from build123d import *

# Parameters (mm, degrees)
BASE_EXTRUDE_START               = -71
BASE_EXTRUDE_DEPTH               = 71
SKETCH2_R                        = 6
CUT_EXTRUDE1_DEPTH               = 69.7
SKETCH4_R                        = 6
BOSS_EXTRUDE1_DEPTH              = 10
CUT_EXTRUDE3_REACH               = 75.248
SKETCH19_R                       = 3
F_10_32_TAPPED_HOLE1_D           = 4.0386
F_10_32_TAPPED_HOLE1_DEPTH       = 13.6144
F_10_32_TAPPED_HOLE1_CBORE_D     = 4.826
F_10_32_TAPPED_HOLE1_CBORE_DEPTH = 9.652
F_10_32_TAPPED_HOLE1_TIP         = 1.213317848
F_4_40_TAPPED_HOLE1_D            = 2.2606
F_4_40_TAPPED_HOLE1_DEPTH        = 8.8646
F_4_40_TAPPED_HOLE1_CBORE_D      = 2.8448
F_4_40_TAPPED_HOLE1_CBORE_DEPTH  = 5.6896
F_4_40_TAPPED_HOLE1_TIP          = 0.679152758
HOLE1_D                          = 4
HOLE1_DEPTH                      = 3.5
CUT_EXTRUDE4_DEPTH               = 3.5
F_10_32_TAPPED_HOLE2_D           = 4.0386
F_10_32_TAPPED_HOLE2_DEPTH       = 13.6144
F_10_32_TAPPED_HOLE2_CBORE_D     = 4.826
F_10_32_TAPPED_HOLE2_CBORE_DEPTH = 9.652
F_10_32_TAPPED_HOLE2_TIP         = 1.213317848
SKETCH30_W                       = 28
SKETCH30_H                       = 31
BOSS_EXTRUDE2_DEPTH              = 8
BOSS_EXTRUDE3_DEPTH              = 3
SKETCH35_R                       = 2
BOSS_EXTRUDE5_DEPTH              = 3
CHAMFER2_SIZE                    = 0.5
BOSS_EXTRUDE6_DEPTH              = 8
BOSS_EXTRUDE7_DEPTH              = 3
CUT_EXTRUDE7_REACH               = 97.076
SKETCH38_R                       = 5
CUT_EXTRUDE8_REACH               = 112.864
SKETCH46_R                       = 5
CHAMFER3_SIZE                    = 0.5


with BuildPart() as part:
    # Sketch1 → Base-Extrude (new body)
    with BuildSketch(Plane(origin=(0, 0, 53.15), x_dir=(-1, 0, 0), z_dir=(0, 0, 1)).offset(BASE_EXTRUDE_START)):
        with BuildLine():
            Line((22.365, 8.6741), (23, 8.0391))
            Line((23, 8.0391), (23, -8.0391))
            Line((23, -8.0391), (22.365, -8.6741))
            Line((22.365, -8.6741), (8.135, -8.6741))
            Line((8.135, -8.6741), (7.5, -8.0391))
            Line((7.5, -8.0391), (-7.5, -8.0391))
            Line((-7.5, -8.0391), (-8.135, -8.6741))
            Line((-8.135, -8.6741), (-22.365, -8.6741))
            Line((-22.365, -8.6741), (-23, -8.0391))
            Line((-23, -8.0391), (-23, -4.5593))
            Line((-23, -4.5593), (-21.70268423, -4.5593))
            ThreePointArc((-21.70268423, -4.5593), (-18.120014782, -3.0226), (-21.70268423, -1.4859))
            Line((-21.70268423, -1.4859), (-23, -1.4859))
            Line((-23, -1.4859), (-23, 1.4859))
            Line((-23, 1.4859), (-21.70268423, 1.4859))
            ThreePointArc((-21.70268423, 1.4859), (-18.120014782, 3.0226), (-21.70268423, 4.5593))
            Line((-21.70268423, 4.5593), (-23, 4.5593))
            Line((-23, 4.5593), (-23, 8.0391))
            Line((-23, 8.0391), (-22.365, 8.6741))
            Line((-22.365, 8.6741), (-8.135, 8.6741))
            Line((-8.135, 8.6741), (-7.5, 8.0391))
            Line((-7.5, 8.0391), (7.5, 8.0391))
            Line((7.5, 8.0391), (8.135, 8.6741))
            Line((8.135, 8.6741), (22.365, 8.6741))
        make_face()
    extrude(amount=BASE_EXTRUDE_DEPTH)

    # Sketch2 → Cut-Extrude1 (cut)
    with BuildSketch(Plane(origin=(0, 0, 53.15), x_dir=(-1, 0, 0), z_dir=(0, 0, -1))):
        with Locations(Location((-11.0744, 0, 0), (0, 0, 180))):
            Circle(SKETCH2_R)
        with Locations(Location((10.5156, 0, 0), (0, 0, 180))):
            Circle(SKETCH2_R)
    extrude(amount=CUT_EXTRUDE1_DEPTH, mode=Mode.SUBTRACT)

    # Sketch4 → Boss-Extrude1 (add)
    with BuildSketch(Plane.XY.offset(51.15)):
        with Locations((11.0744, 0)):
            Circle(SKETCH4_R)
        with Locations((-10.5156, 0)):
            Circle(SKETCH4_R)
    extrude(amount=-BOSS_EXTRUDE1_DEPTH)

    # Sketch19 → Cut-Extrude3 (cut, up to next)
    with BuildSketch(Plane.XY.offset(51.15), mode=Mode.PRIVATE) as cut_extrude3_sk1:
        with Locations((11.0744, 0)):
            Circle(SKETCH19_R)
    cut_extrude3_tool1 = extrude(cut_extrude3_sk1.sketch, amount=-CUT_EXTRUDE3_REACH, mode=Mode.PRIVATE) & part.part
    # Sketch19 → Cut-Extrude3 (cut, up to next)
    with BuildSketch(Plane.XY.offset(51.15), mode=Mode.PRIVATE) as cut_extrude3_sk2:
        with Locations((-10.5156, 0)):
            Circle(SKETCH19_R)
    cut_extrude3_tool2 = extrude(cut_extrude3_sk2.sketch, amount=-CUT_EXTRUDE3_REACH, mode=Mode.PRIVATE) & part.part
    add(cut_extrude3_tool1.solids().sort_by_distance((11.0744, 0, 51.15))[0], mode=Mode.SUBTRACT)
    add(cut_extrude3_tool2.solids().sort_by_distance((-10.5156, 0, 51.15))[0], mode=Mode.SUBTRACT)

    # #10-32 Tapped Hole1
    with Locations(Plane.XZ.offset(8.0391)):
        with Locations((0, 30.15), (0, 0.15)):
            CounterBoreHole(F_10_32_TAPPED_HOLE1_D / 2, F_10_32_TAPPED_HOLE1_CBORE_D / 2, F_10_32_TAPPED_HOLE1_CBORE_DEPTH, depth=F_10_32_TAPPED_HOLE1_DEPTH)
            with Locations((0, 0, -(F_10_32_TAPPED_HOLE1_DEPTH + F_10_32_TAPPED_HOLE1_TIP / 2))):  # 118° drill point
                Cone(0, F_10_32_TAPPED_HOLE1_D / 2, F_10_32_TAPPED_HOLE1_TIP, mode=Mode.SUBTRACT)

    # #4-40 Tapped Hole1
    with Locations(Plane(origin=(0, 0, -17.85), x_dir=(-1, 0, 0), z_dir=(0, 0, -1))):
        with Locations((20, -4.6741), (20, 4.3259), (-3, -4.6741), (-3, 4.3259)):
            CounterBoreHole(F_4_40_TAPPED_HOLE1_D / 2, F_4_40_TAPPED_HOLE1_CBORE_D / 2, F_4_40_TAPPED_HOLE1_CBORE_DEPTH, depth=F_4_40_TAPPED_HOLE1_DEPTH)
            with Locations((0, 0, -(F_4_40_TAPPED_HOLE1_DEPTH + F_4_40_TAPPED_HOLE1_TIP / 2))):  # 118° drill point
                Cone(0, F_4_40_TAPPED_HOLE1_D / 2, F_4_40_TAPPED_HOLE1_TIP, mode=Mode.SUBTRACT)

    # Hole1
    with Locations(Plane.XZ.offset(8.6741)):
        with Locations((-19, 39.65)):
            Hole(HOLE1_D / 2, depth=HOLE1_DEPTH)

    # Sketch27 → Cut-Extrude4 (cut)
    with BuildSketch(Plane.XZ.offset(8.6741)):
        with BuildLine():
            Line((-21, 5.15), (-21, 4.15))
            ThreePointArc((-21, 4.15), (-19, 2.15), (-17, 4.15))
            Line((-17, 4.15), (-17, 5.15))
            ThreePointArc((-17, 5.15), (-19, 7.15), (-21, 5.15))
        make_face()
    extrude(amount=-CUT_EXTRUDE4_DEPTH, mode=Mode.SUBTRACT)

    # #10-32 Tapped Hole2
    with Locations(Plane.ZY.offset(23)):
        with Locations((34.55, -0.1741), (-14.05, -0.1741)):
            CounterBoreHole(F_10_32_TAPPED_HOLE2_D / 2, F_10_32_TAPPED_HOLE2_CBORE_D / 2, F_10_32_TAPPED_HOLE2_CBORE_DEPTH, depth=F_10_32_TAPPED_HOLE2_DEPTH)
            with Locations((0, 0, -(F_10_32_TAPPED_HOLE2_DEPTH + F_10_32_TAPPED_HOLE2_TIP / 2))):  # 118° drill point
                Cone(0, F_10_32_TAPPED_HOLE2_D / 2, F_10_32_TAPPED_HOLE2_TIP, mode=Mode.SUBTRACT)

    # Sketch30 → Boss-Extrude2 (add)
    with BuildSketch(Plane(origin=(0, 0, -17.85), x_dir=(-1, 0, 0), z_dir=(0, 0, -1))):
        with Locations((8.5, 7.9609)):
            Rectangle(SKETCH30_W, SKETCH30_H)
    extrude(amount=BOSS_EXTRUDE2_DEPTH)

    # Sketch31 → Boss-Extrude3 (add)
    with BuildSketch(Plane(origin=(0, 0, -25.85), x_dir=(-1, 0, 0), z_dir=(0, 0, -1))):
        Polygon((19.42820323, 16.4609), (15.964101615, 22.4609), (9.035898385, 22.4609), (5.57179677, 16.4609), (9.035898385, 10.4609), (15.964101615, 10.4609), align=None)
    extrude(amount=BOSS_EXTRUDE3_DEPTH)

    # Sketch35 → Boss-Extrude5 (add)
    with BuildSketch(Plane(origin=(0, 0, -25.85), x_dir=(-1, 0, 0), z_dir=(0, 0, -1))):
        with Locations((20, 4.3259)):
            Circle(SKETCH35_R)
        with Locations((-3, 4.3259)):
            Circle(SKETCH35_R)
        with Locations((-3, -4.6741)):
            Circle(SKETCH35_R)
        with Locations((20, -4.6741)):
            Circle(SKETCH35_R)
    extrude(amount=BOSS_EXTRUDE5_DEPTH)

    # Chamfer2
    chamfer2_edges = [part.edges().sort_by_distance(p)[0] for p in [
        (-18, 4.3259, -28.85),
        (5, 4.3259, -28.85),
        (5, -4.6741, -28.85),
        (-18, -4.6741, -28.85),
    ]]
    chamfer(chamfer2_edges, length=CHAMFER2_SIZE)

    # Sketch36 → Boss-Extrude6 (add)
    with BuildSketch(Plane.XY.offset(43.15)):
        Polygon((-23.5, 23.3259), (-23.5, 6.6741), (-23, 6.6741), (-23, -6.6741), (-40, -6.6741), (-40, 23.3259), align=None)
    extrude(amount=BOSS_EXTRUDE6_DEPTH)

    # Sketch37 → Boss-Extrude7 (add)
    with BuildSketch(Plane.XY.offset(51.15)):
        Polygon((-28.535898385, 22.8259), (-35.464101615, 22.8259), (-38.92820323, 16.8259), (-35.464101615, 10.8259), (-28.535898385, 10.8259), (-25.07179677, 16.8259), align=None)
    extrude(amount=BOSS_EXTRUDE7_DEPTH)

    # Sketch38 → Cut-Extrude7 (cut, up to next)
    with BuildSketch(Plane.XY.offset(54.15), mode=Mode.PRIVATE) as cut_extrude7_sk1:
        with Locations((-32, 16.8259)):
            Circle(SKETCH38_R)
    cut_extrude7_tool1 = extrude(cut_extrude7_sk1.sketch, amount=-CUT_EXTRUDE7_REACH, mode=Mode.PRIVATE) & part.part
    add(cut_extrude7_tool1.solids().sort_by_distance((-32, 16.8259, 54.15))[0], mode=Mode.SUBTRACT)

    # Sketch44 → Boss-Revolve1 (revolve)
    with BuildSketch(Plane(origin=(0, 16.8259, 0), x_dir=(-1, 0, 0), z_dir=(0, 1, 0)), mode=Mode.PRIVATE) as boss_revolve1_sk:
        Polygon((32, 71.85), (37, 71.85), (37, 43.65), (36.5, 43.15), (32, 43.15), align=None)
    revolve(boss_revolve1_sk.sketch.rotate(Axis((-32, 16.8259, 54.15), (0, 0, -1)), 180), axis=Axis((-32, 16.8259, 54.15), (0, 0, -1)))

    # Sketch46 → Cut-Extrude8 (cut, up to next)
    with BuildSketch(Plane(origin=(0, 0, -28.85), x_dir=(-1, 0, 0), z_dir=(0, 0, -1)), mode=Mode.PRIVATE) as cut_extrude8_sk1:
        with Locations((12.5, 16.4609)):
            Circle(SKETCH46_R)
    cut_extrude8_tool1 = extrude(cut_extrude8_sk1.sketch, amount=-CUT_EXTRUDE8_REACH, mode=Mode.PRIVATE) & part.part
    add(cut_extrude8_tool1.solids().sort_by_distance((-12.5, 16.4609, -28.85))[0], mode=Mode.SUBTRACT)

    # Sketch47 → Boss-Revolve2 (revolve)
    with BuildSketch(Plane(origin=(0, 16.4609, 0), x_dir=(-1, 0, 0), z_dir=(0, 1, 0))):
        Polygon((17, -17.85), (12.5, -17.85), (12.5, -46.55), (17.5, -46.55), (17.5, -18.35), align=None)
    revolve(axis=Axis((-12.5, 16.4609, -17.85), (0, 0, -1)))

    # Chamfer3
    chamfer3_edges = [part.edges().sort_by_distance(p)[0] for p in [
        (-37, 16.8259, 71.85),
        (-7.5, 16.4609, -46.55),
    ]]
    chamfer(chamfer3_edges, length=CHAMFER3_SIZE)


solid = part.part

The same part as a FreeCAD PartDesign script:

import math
import FreeCAD as App
import Part
import Sketcher
Q = App.Units.Quantity


def edges_at(feature, points):
    """Names of the edges that pass closest to the given points."""
    edges = feature.Shape.Edges
    near = lambda p: min(range(len(edges)), key=lambda i: edges[i].distToShape(Part.Vertex(*p))[0])
    return sorted({f"Edge{near(p) + 1}" for p in points})

doc = App.newDocument("Part")
body = doc.addObject("PartDesign::Body", "Body")

sketch1 = body.newObject("Sketcher::SketchObject", "Sketch")
sketch1.AttachmentSupport = (doc.getObject("XY_Plane"), [""])
sketch1.MapMode = "FlatFace"
sketch1.AttachmentOffset = App.Placement(App.Vector(0, 0, -17.85), App.Rotation())
sketch1.addGeometry(Part.LineSegment(App.Vector(-23, -8.0391, 0), App.Vector(-22.365, -8.6741, 0)), False)
sketch1.addGeometry(Part.LineSegment(App.Vector(-22.365, -8.6741, 0), App.Vector(-8.135, -8.6741, 0)), False)
sketch1.addGeometry(Part.LineSegment(App.Vector(-8.135, -8.6741, 0), App.Vector(-7.5, -8.0391, 0)), False)
sketch1.addGeometry(Part.LineSegment(App.Vector(-7.5, -8.0391, 0), App.Vector(7.5, -8.0391, 0)), False)
sketch1.addGeometry(Part.LineSegment(App.Vector(7.5, -8.0391, 0), App.Vector(8.135, -8.6741, 0)), False)
sketch1.addGeometry(Part.LineSegment(App.Vector(8.135, -8.6741, 0), App.Vector(22.365, -8.6741, 0)), False)
sketch1.addGeometry(Part.LineSegment(App.Vector(22.365, -8.6741, 0), App.Vector(23, -8.0391, 0)), False)
sketch1.addGeometry(Part.LineSegment(App.Vector(23, -8.0391, 0), App.Vector(23, -4.5593, 0)), False)
sketch1.addGeometry(Part.LineSegment(App.Vector(23, -4.5593, 0), App.Vector(21.702684, -4.5593, 0)), False)
sketch1.addGeometry(Part.ArcOfCircle(Part.Circle(App.Vector(20.240915, -3.0226, 0), App.Vector(0, 0, 1), 2.1209), math.radians(46.431501), math.radians(313.568499)), False)
sketch1.addGeometry(Part.LineSegment(App.Vector(21.702684, -1.4859, 0), App.Vector(23, -1.4859, 0)), False)
sketch1.addGeometry(Part.LineSegment(App.Vector(23, -1.4859, 0), App.Vector(23, 1.4859, 0)), False)
sketch1.addGeometry(Part.LineSegment(App.Vector(23, 1.4859, 0), App.Vector(21.702684, 1.4859, 0)), False)
sketch1.addGeometry(Part.ArcOfCircle(Part.Circle(App.Vector(20.240915, 3.0226, 0), App.Vector(0, 0, 1), 2.1209), math.radians(46.431501), math.radians(313.568499)), False)
sketch1.addGeometry(Part.LineSegment(App.Vector(21.702684, 4.5593, 0), App.Vector(23, 4.5593, 0)), False)
sketch1.addGeometry(Part.LineSegment(App.Vector(23, 4.5593, 0), App.Vector(23, 8.0391, 0)), False)
sketch1.addGeometry(Part.LineSegment(App.Vector(23, 8.0391, 0), App.Vector(22.365, 8.6741, 0)), False)
sketch1.addGeometry(Part.LineSegment(App.Vector(22.365, 8.6741, 0), App.Vector(8.135, 8.6741, 0)), False)
sketch1.addGeometry(Part.LineSegment(App.Vector(8.135, 8.6741, 0), App.Vector(7.5, 8.0391, 0)), False)
sketch1.addGeometry(Part.LineSegment(App.Vector(7.5, 8.0391, 0), App.Vector(-7.5, 8.0391, 0)), False)
sketch1.addGeometry(Part.LineSegment(App.Vector(-7.5, 8.0391, 0), App.Vector(-8.135, 8.6741, 0)), False)
sketch1.addGeometry(Part.LineSegment(App.Vector(-8.135, 8.6741, 0), App.Vector(-22.365, 8.6741, 0)), False)
sketch1.addGeometry(Part.LineSegment(App.Vector(-22.365, 8.6741, 0), App.Vector(-23, 8.0391, 0)), False)
sketch1.addGeometry(Part.LineSegment(App.Vector(-23, 8.0391, 0), App.Vector(-23, -8.0391, 0)), False)
sketch1.addConstraint(Sketcher.Constraint("Coincident", 0, 2, 1, 1))
sketch1.addConstraint(Sketcher.Constraint("Coincident", 1, 2, 2, 1))
sketch1.addConstraint(Sketcher.Constraint("Coincident", 2, 2, 3, 1))
sketch1.addConstraint(Sketcher.Constraint("Coincident", 3, 2, 4, 1))
sketch1.addConstraint(Sketcher.Constraint("Coincident", 4, 2, 5, 1))
sketch1.addConstraint(Sketcher.Constraint("Coincident", 5, 2, 6, 1))
sketch1.addConstraint(Sketcher.Constraint("Coincident", 6, 2, 7, 1))
sketch1.addConstraint(Sketcher.Constraint("Coincident", 7, 2, 8, 1))
sketch1.addConstraint(Sketcher.Constraint("Coincident", 8, 2, 9, 2))
sketch1.addConstraint(Sketcher.Constraint("Coincident", 9, 1, 10, 1))
sketch1.addConstraint(Sketcher.Constraint("Coincident", 10, 2, 11, 1))
sketch1.addConstraint(Sketcher.Constraint("Coincident", 11, 2, 12, 1))
sketch1.addConstraint(Sketcher.Constraint("Coincident", 12, 2, 13, 2))
sketch1.addConstraint(Sketcher.Constraint("Coincident", 13, 1, 14, 1))
sketch1.addConstraint(Sketcher.Constraint("Coincident", 14, 2, 15, 1))
sketch1.addConstraint(Sketcher.Constraint("Coincident", 15, 2, 16, 1))
sketch1.addConstraint(Sketcher.Constraint("Coincident", 16, 2, 17, 1))
sketch1.addConstraint(Sketcher.Constraint("Coincident", 17, 2, 18, 1))
sketch1.addConstraint(Sketcher.Constraint("Coincident", 18, 2, 19, 1))
sketch1.addConstraint(Sketcher.Constraint("Coincident", 19, 2, 20, 1))
sketch1.addConstraint(Sketcher.Constraint("Coincident", 20, 2, 21, 1))
sketch1.addConstraint(Sketcher.Constraint("Coincident", 21, 2, 22, 1))
sketch1.addConstraint(Sketcher.Constraint("Coincident", 22, 2, 23, 1))
sketch1.addConstraint(Sketcher.Constraint("Coincident", 23, 2, 0, 1))
sketch1.addConstraint(Sketcher.Constraint("Horizontal", 1))
sketch1.addConstraint(Sketcher.Constraint("Horizontal", 3))
sketch1.addConstraint(Sketcher.Constraint("Horizontal", 5))
sketch1.addConstraint(Sketcher.Constraint("Vertical", 7))
sketch1.addConstraint(Sketcher.Constraint("Horizontal", 8))
sketch1.addConstraint(Sketcher.Constraint("Horizontal", 10))
sketch1.addConstraint(Sketcher.Constraint("Vertical", 11))
sketch1.addConstraint(Sketcher.Constraint("Horizontal", 12))
sketch1.addConstraint(Sketcher.Constraint("Horizontal", 14))
sketch1.addConstraint(Sketcher.Constraint("Vertical", 15))
sketch1.addConstraint(Sketcher.Constraint("Horizontal", 17))
sketch1.addConstraint(Sketcher.Constraint("Horizontal", 19))
sketch1.addConstraint(Sketcher.Constraint("Horizontal", 21))
sketch1.addConstraint(Sketcher.Constraint("Vertical", 23))
sketch1.addConstraint(Sketcher.Constraint("Equal", 9, 13))
sketch1.addConstraint(Sketcher.Constraint("Symmetric", 0, 2, 16, 2, -1, 1))
sketch1.addConstraint(Sketcher.Constraint("Symmetric", 2, 2, 18, 2, -1, 1))
sketch1.addConstraint(Sketcher.Constraint("Symmetric", 4, 2, 20, 2, -1, 1))
sketch1.addConstraint(Sketcher.Constraint("Symmetric", 6, 2, 22, 2, -1, 1))
sketch1.addConstraint(Sketcher.Constraint("Symmetric", 15, 2, 23, 2, -1, 1))
sketch1.addConstraint(Sketcher.Constraint("Symmetric", 1, 2, 4, 2, -2))
sketch1.addConstraint(Sketcher.Constraint("Symmetric", 9, 3, 13, 3, -1))
sketch1.addConstraint(Sketcher.Constraint("Perpendicular", 0, 2))
sketch1.addConstraint(Sketcher.Constraint("Perpendicular", 2, 4))
sketch1.addConstraint(Sketcher.Constraint("Perpendicular", 4, 6))
sketch1.addConstraint(Sketcher.Constraint("Perpendicular", 16, 18))
sketch1.addConstraint(Sketcher.Constraint("Perpendicular", 18, 20))
sketch1.addConstraint(Sketcher.Constraint("Perpendicular", 20, 22))
sketch1.addConstraint(Sketcher.Constraint("Horizontal", 3, 2, 6, 2))
sketch1.addConstraint(Sketcher.Constraint("Horizontal", 15, 2, 18, 2))
sketch1.addConstraint(Sketcher.Constraint("Vertical", 8, 2, 9, 1))
sketch1.addConstraint(Sketcher.Constraint("Vertical", 7, 2, 10, 2))
sketch1.addConstraint(Sketcher.Constraint("Vertical", 9, 1, 12, 2))
sketch1.addConstraint(Sketcher.Constraint("Vertical", 12, 2, 13, 1))
sketch1.addConstraint(Sketcher.Constraint("Vertical", 5, 2, 16, 2))
sketch1.addConstraint(Sketcher.Constraint("DistanceX", 3, 1, 3, 2, Q("15 mm")))
sketch1.addConstraint(Sketcher.Constraint("DistanceX", -1, 1, 6, 2, Q("23 mm")))
sketch1.addConstraint(Sketcher.Constraint("DistanceX", 1, 1, 1, 2, Q("14.23 mm")))
sketch1.addConstraint(Sketcher.Constraint("Radius", 9, Q("2.1209 mm")))
sketch1.addConstraint(Sketcher.Constraint("DistanceY", 7, 1, 7, 2, Q("3.4798 mm")))
sketch1.addConstraint(Sketcher.Constraint("DistanceY", 11, 1, 11, 2, Q("2.9718 mm")))
sketch1.addConstraint(Sketcher.Constraint("DistanceY", 23, 2, 23, 1, Q("16.0782 mm")))
sketch1.addConstraint(Sketcher.Constraint("DistanceX", 8, 2, 8, 1, Q("1.297316 mm")))
pad1 = body.newObject("PartDesign::Pad", "Pad")
pad1.Profile = sketch1
pad1.Length = 71

sketch2 = body.newObject("Sketcher::SketchObject", "Sketch001")
sketch2.AttachmentSupport = (doc.getObject("XY_Plane"), [""])
sketch2.MapMode = "FlatFace"
sketch2.AttachmentOffset = App.Placement(App.Vector(0, 0, 53.15), App.Rotation())
sketch2.addGeometry(Part.Circle(App.Vector(11.0744, 0, 0), App.Vector(0, 0, 1), 6), False)
sketch2.addGeometry(Part.Circle(App.Vector(-10.5156, 0, 0), App.Vector(0, 0, 1), 6), False)
sketch2.addConstraint(Sketcher.Constraint("Equal", 0, 1))
sketch2.addConstraint(Sketcher.Constraint("PointOnObject", 0, 3, -1))
sketch2.addConstraint(Sketcher.Constraint("PointOnObject", 1, 3, -1))
sketch2.addConstraint(Sketcher.Constraint("Diameter", 0, Q("12 mm")))
sketch2.addConstraint(Sketcher.Constraint("DistanceX", 1, 3, 0, 3, Q("21.59 mm")))
sketch2.addConstraint(Sketcher.Constraint("DistanceX", -1, 1, 0, 3, Q("11.0744 mm")))
pocket1 = body.newObject("PartDesign::Pocket", "Pocket")
pocket1.Profile = sketch2
pocket1.Length = 69.7

sketch3 = body.newObject("Sketcher::SketchObject", "Sketch002")
sketch3.AttachmentSupport = (doc.getObject("XY_Plane"), [""])
sketch3.MapMode = "FlatFace"
sketch3.AttachmentOffset = App.Placement(App.Vector(0, 0, 51.15), App.Rotation())
sketch3.addGeometry(Part.Circle(App.Vector(11.0744, 0, 0), App.Vector(0, 0, 1), 6), False)
sketch3.addGeometry(Part.Circle(App.Vector(-10.5156, 0, 0), App.Vector(0, 0, 1), 6), False)
sketch3.addConstraint(Sketcher.Constraint("Equal", 0, 1))
sketch3.addConstraint(Sketcher.Constraint("PointOnObject", 0, 3, -1))
sketch3.addConstraint(Sketcher.Constraint("PointOnObject", 1, 3, -1))
sketch3.addConstraint(Sketcher.Constraint("Diameter", 0, Q("12 mm")))
sketch3.addConstraint(Sketcher.Constraint("DistanceX", 1, 3, 0, 3, Q("21.59 mm")))
sketch3.addConstraint(Sketcher.Constraint("DistanceX", -1, 1, 0, 3, Q("11.0744 mm")))
pad2 = body.newObject("PartDesign::Pad", "Pad001")
pad2.Profile = sketch3
pad2.Length = 10
pad2.Reversed = True

sketch4 = body.newObject("Sketcher::SketchObject", "Sketch003")
sketch4.AttachmentSupport = (doc.getObject("XY_Plane"), [""])
sketch4.MapMode = "FlatFace"
sketch4.AttachmentOffset = App.Placement(App.Vector(0, 0, 51.15), App.Rotation())
sketch4.addGeometry(Part.Circle(App.Vector(11.0744, 0, 0), App.Vector(0, 0, 1), 3), False)
sketch4.addConstraint(Sketcher.Constraint("PointOnObject", 0, 3, -1))
sketch4.addConstraint(Sketcher.Constraint("Diameter", 0, Q("6 mm")))
sketch4.addConstraint(Sketcher.Constraint("DistanceX", -1, 1, 0, 3, Q("11.0744 mm")))
pocket2 = body.newObject("PartDesign::Pocket", "Pocket001")
pocket2.Profile = sketch4
pocket2.Type = "UpToFirst"

sketch5 = body.newObject("Sketcher::SketchObject", "Sketch004")
sketch5.AttachmentSupport = (doc.getObject("XY_Plane"), [""])
sketch5.MapMode = "FlatFace"
sketch5.AttachmentOffset = App.Placement(App.Vector(0, 0, 51.15), App.Rotation())
sketch5.addGeometry(Part.Circle(App.Vector(-10.5156, 0, 0), App.Vector(0, 0, 1), 3), False)
sketch5.addConstraint(Sketcher.Constraint("PointOnObject", 0, 3, -1))
sketch5.addConstraint(Sketcher.Constraint("Diameter", 0, Q("6 mm")))
sketch5.addConstraint(Sketcher.Constraint("DistanceX", 0, 3, -1, 1, Q("10.5156 mm")))
pocket3 = body.newObject("PartDesign::Pocket", "Pocket002")
pocket3.Profile = sketch5
pocket3.Type = "UpToFirst"

sketch6 = body.newObject("Sketcher::SketchObject", "Sketch005")
sketch6.AttachmentSupport = (doc.getObject("XZ_Plane"), [""])
sketch6.MapMode = "FlatFace"
sketch6.AttachmentOffset = App.Placement(App.Vector(0, 0, 8.0391), App.Rotation())
sketch6.addGeometry(Part.Circle(App.Vector(0, 30.15, 0), App.Vector(0, 0, 1), 2.0193), False)
sketch6.addGeometry(Part.Circle(App.Vector(0, 0.15, 0), App.Vector(0, 0, 1), 2.0193), False)
sketch6.addConstraint(Sketcher.Constraint("Equal", 0, 1))
sketch6.addConstraint(Sketcher.Constraint("PointOnObject", 0, 3, -2))
sketch6.addConstraint(Sketcher.Constraint("PointOnObject", 1, 3, -2))
sketch6.addConstraint(Sketcher.Constraint("DistanceY", 1, 3, 0, 3, Q("30 mm")))
sketch6.addConstraint(Sketcher.Constraint("Diameter", 0, Q("4.0386 mm")))
sketch6.addConstraint(Sketcher.Constraint("DistanceY", -1, 1, 0, 3, Q("30.15 mm")))
doc.recompute()
hole = body.newObject("PartDesign::Hole", "Hole")
hole.Profile = sketch6
hole.ThreadType = "None"
hole.Diameter = 4.0386
hole.DepthType = "Dimension"
hole.Depth = 13.6144
hole.DrillPoint = "Angled"
hole.DrillPointAngle = 118
hole.HoleCutType = "Counterbore"
hole.HoleCutDiameter = 4.826
hole.HoleCutDepth = 9.652

sketch7 = body.newObject("Sketcher::SketchObject", "Sketch006")
sketch7.AttachmentSupport = (doc.getObject("XY_Plane"), [""])
sketch7.MapMode = "FlatFace"
sketch7.AttachmentOffset = App.Placement(App.Vector(0, 0, -17.85), App.Rotation())
sketch7.addGeometry(Part.Circle(App.Vector(-20, -4.6741, 0), App.Vector(0, 0, 1), 1.1303), False)
sketch7.addGeometry(Part.Circle(App.Vector(-20, 4.3259, 0), App.Vector(0, 0, 1), 1.1303), False)
sketch7.addGeometry(Part.Circle(App.Vector(3, -4.6741, 0), App.Vector(0, 0, 1), 1.1303), False)
sketch7.addGeometry(Part.Circle(App.Vector(3, 4.3259, 0), App.Vector(0, 0, 1), 1.1303), False)
sketch7.addConstraint(Sketcher.Constraint("Equal", 0, 1))
sketch7.addConstraint(Sketcher.Constraint("Equal", 1, 2))
sketch7.addConstraint(Sketcher.Constraint("Equal", 2, 3))
sketch7.addConstraint(Sketcher.Constraint("Horizontal", 0, 3, 2, 3))
sketch7.addConstraint(Sketcher.Constraint("Horizontal", 1, 3, 3, 3))
sketch7.addConstraint(Sketcher.Constraint("Vertical", 0, 3, 1, 3))
sketch7.addConstraint(Sketcher.Constraint("Vertical", 2, 3, 3, 3))
sketch7.addConstraint(Sketcher.Constraint("DistanceX", 0, 3, -1, 1, Q("20 mm")))
sketch7.addConstraint(Sketcher.Constraint("DistanceX", -1, 1, 2, 3, Q("3 mm")))
sketch7.addConstraint(Sketcher.Constraint("DistanceY", 0, 3, 1, 3, Q("9 mm")))
sketch7.addConstraint(Sketcher.Constraint("Diameter", 0, Q("2.2606 mm")))
sketch7.addConstraint(Sketcher.Constraint("DistanceY", 0, 3, -1, 1, Q("4.6741 mm")))
doc.recompute()
hole2 = body.newObject("PartDesign::Hole", "Hole001")
hole2.Profile = sketch7
hole2.ThreadType = "None"
hole2.Diameter = 2.2606
hole2.DepthType = "Dimension"
hole2.Depth = 8.8646
hole2.DrillPoint = "Angled"
hole2.DrillPointAngle = 118
hole2.HoleCutType = "Counterbore"
hole2.HoleCutDiameter = 2.8448
hole2.HoleCutDepth = 5.6896
hole2.Reversed = True

sketch8 = body.newObject("Sketcher::SketchObject", "Sketch007")
sketch8.AttachmentSupport = (doc.getObject("XZ_Plane"), [""])
sketch8.MapMode = "FlatFace"
sketch8.AttachmentOffset = App.Placement(App.Vector(0, 0, 8.6741), App.Rotation())
sketch8.addGeometry(Part.Circle(App.Vector(-19, 39.65, 0), App.Vector(0, 0, 1), 2), False)
sketch8.addConstraint(Sketcher.Constraint("Diameter", 0, Q("4 mm")))
sketch8.addConstraint(Sketcher.Constraint("DistanceX", 0, 3, -1, 1, Q("19 mm")))
sketch8.addConstraint(Sketcher.Constraint("DistanceY", -1, 1, 0, 3, Q("39.65 mm")))
doc.recompute()
hole3 = body.newObject("PartDesign::Hole", "Hole002")
hole3.Profile = sketch8
hole3.ThreadType = "None"
hole3.Diameter = 4
hole3.DepthType = "Dimension"
hole3.Depth = 3.5
hole3.DrillPoint = "Flat"

sketch9 = body.newObject("Sketcher::SketchObject", "Sketch008")
sketch9.AttachmentSupport = (doc.getObject("XZ_Plane"), [""])
sketch9.MapMode = "FlatFace"
sketch9.AttachmentOffset = App.Placement(App.Vector(0, 0, 8.6741), App.Rotation())
sketch9.addGeometry(Part.LineSegment(App.Vector(-21, 5.15, 0), App.Vector(-21, 4.15, 0)), False)
sketch9.addGeometry(Part.ArcOfCircle(Part.Circle(App.Vector(-19, 4.15, 0), App.Vector(0, 0, 1), 2), math.radians(180), math.radians(360)), False)
sketch9.addGeometry(Part.LineSegment(App.Vector(-17, 4.15, 0), App.Vector(-17, 5.15, 0)), False)
sketch9.addGeometry(Part.ArcOfCircle(Part.Circle(App.Vector(-19, 5.15, 0), App.Vector(0, 0, 1), 2), math.radians(0), math.radians(180)), False)
sketch9.addConstraint(Sketcher.Constraint("Tangent", 0, 2, 1, 1))
sketch9.addConstraint(Sketcher.Constraint("Tangent", 1, 2, 2, 1))
sketch9.addConstraint(Sketcher.Constraint("Tangent", 2, 2, 3, 1))
sketch9.addConstraint(Sketcher.Constraint("Tangent", 3, 2, 0, 1))
sketch9.addConstraint(Sketcher.Constraint("Vertical", 0))
sketch9.addConstraint(Sketcher.Constraint("Vertical", 2))
sketch9.addConstraint(Sketcher.Constraint("Radius", 1, Q("2 mm")))
sketch9.addConstraint(Sketcher.Constraint("DistanceY", 0, 2, 0, 1, Q("1 mm")))
sketch9.addConstraint(Sketcher.Constraint("DistanceX", 1, 3, -1, 1, Q("19 mm")))
sketch9.addConstraint(Sketcher.Constraint("DistanceY", -1, 1, 1, 3, Q("4.15 mm")))
pocket4 = body.newObject("PartDesign::Pocket", "Pocket003")
pocket4.Profile = sketch9
pocket4.Length = 3.5

sketch10 = body.newObject("Sketcher::SketchObject", "Sketch009")
sketch10.AttachmentSupport = (doc.getObject("YZ_Plane"), [""])
sketch10.MapMode = "FlatFace"
sketch10.AttachmentOffset = App.Placement(App.Vector(0, 0, -23), App.Rotation())
sketch10.addGeometry(Part.Circle(App.Vector(-0.1741, 34.55, 0), App.Vector(0, 0, 1), 2.0193), False)
sketch10.addGeometry(Part.Circle(App.Vector(-0.1741, -14.05, 0), App.Vector(0, 0, 1), 2.0193), False)
sketch10.addConstraint(Sketcher.Constraint("Equal", 0, 1))
sketch10.addConstraint(Sketcher.Constraint("Vertical", 0, 3, 1, 3))
sketch10.addConstraint(Sketcher.Constraint("Diameter", 0, Q("4.0386 mm")))
sketch10.addConstraint(Sketcher.Constraint("DistanceY", 1, 3, 0, 3, Q("48.6 mm")))
sketch10.addConstraint(Sketcher.Constraint("DistanceY", -1, 1, 0, 3, Q("34.55 mm")))
sketch10.addConstraint(Sketcher.Constraint("DistanceX", 0, 3, -1, 1, Q("0.1741 mm")))
doc.recompute()
hole4 = body.newObject("PartDesign::Hole", "Hole003")
hole4.Profile = sketch10
hole4.ThreadType = "None"
hole4.Diameter = 4.0386
hole4.DepthType = "Dimension"
hole4.Depth = 13.6144
hole4.DrillPoint = "Angled"
hole4.DrillPointAngle = 118
hole4.HoleCutType = "Counterbore"
hole4.HoleCutDiameter = 4.826
hole4.HoleCutDepth = 9.652
hole4.Reversed = True

sketch11 = body.newObject("Sketcher::SketchObject", "Sketch010")
sketch11.AttachmentSupport = (doc.getObject("XY_Plane"), [""])
sketch11.MapMode = "FlatFace"
sketch11.AttachmentOffset = App.Placement(App.Vector(0, 0, -17.85), App.Rotation())
sketch11.addGeometry(Part.LineSegment(App.Vector(5.5, 23.4609, 0), App.Vector(5.5, -7.5391, 0)), False)
sketch11.addGeometry(Part.LineSegment(App.Vector(5.5, -7.5391, 0), App.Vector(-22.5, -7.5391, 0)), False)
sketch11.addGeometry(Part.LineSegment(App.Vector(-22.5, -7.5391, 0), App.Vector(-22.5, 23.4609, 0)), False)
sketch11.addGeometry(Part.LineSegment(App.Vector(-22.5, 23.4609, 0), App.Vector(5.5, 23.4609, 0)), False)
sketch11.addConstraint(Sketcher.Constraint("Coincident", 0, 2, 1, 1))
sketch11.addConstraint(Sketcher.Constraint("Coincident", 1, 2, 2, 1))
sketch11.addConstraint(Sketcher.Constraint("Coincident", 2, 2, 3, 1))
sketch11.addConstraint(Sketcher.Constraint("Coincident", 3, 2, 0, 1))
sketch11.addConstraint(Sketcher.Constraint("Vertical", 0))
sketch11.addConstraint(Sketcher.Constraint("Horizontal", 1))
sketch11.addConstraint(Sketcher.Constraint("Vertical", 2))
sketch11.addConstraint(Sketcher.Constraint("Horizontal", 3))
sketch11.addConstraint(Sketcher.Constraint("DistanceX", 1, 2, 1, 1, Q("28 mm")))
sketch11.addConstraint(Sketcher.Constraint("DistanceY", 0, 2, 0, 1, Q("31 mm")))
sketch11.addConstraint(Sketcher.Constraint("DistanceX", -1, 1, 0, 2, Q("5.5 mm")))
sketch11.addConstraint(Sketcher.Constraint("DistanceY", 0, 2, -1, 1, Q("7.5391 mm")))
pad3 = body.newObject("PartDesign::Pad", "Pad002")
pad3.Profile = sketch11
pad3.Length = 8
pad3.Reversed = True

sketch12 = body.newObject("Sketcher::SketchObject", "Sketch011")
sketch12.AttachmentSupport = (doc.getObject("XY_Plane"), [""])
sketch12.MapMode = "FlatFace"
sketch12.AttachmentOffset = App.Placement(App.Vector(0, 0, -25.85), App.Rotation())
sketch12.addGeometry(Part.LineSegment(App.Vector(-19.428203, 16.4609, 0), App.Vector(-15.964102, 22.4609, 0)), False)
sketch12.addGeometry(Part.LineSegment(App.Vector(-15.964102, 22.4609, 0), App.Vector(-9.035898, 22.4609, 0)), False)
sketch12.addGeometry(Part.LineSegment(App.Vector(-9.035898, 22.4609, 0), App.Vector(-5.571797, 16.4609, 0)), False)
sketch12.addGeometry(Part.LineSegment(App.Vector(-5.571797, 16.4609, 0), App.Vector(-9.035898, 10.4609, 0)), False)
sketch12.addGeometry(Part.LineSegment(App.Vector(-9.035898, 10.4609, 0), App.Vector(-15.964102, 10.4609, 0)), False)
sketch12.addGeometry(Part.LineSegment(App.Vector(-15.964102, 10.4609, 0), App.Vector(-19.428203, 16.4609, 0)), False)
sketch12.addConstraint(Sketcher.Constraint("Coincident", 0, 2, 1, 1))
sketch12.addConstraint(Sketcher.Constraint("Coincident", 1, 2, 2, 1))
sketch12.addConstraint(Sketcher.Constraint("Coincident", 2, 2, 3, 1))
sketch12.addConstraint(Sketcher.Constraint("Coincident", 3, 2, 4, 1))
sketch12.addConstraint(Sketcher.Constraint("Coincident", 4, 2, 5, 1))
sketch12.addConstraint(Sketcher.Constraint("Coincident", 5, 2, 0, 1))
sketch12.addConstraint(Sketcher.Constraint("Horizontal", 1))
sketch12.addConstraint(Sketcher.Constraint("Horizontal", 4))
sketch12.addConstraint(Sketcher.Constraint("Parallel", 0, 3))
sketch12.addConstraint(Sketcher.Constraint("Parallel", 2, 5))
sketch12.addConstraint(Sketcher.Constraint("Horizontal", 2, 2, 5, 2))
sketch12.addConstraint(Sketcher.Constraint("Vertical", 1, 2, 3, 2))
sketch12.addConstraint(Sketcher.Constraint("Vertical", 0, 2, 4, 2))
sketch12.addConstraint(Sketcher.Constraint("Angle", 0, Q("60 deg")))
sketch12.addConstraint(Sketcher.Constraint("DistanceY", 2, 2, 1, 2, Q("6 mm")))
sketch12.addConstraint(Sketcher.Constraint("DistanceX", 0, 2, -1, 1, Q("15.964102 mm")))
sketch12.addConstraint(Sketcher.Constraint("DistanceY", -1, 1, 0, 2, Q("22.4609 mm")))
sketch12.addConstraint(Sketcher.Constraint("DistanceX", 1, 2, -1, 1, Q("9.035898 mm")))
pad4 = body.newObject("PartDesign::Pad", "Pad003")
pad4.Profile = sketch12
pad4.Length = 3
pad4.Reversed = True

sketch13 = body.newObject("Sketcher::SketchObject", "Sketch012")
sketch13.AttachmentSupport = (doc.getObject("XY_Plane"), [""])
sketch13.MapMode = "FlatFace"
sketch13.AttachmentOffset = App.Placement(App.Vector(0, 0, -25.85), App.Rotation())
sketch13.addGeometry(Part.Circle(App.Vector(-20, 4.3259, 0), App.Vector(0, 0, 1), 2), False)
sketch13.addGeometry(Part.Circle(App.Vector(3, 4.3259, 0), App.Vector(0, 0, 1), 2), False)
sketch13.addGeometry(Part.Circle(App.Vector(3, -4.6741, 0), App.Vector(0, 0, 1), 2), False)
sketch13.addGeometry(Part.Circle(App.Vector(-20, -4.6741, 0), App.Vector(0, 0, 1), 2), False)
sketch13.addConstraint(Sketcher.Constraint("Equal", 0, 1))
sketch13.addConstraint(Sketcher.Constraint("Equal", 1, 2))
sketch13.addConstraint(Sketcher.Constraint("Equal", 2, 3))
sketch13.addConstraint(Sketcher.Constraint("Horizontal", 0, 3, 1, 3))
sketch13.addConstraint(Sketcher.Constraint("Horizontal", 2, 3, 3, 3))
sketch13.addConstraint(Sketcher.Constraint("Vertical", 1, 3, 2, 3))
sketch13.addConstraint(Sketcher.Constraint("Vertical", 0, 3, 3, 3))
sketch13.addConstraint(Sketcher.Constraint("Diameter", 0, Q("4 mm")))
sketch13.addConstraint(Sketcher.Constraint("DistanceX", 0, 3, -1, 1, Q("20 mm")))
sketch13.addConstraint(Sketcher.Constraint("DistanceX", -1, 1, 1, 3, Q("3 mm")))
sketch13.addConstraint(Sketcher.Constraint("DistanceY", 2, 3, 1, 3, Q("9 mm")))
sketch13.addConstraint(Sketcher.Constraint("DistanceY", -1, 1, 0, 3, Q("4.3259 mm")))
pad5 = body.newObject("PartDesign::Pad", "Pad004")
pad5.Profile = sketch13
pad5.Length = 3
pad5.Reversed = True
doc.recompute()

chamfer = body.newObject("PartDesign::Chamfer", "Chamfer")
chamfer.Base = (pad5, edges_at(pad5, [
    (-18, 4.326, -28.85),
    (5, 4.326, -28.85),
    (5, -4.674, -28.85),
    (-18, -4.674, -28.85),
]))
chamfer.Size = 0.5

sketch14 = body.newObject("Sketcher::SketchObject", "Sketch013")
sketch14.AttachmentSupport = (doc.getObject("XY_Plane"), [""])
sketch14.MapMode = "FlatFace"
sketch14.AttachmentOffset = App.Placement(App.Vector(0, 0, 43.15), App.Rotation())
sketch14.addGeometry(Part.LineSegment(App.Vector(-23.5, 6.6741, 0), App.Vector(-23.5, 23.3259, 0)), False)
sketch14.addGeometry(Part.LineSegment(App.Vector(-23.5, 23.3259, 0), App.Vector(-40, 23.3259, 0)), False)
sketch14.addGeometry(Part.LineSegment(App.Vector(-40, 23.3259, 0), App.Vector(-40, -6.6741, 0)), False)
sketch14.addGeometry(Part.LineSegment(App.Vector(-40, -6.6741, 0), App.Vector(-23, -6.6741, 0)), False)
sketch14.addGeometry(Part.LineSegment(App.Vector(-23, -6.6741, 0), App.Vector(-23, 6.6741, 0)), False)
sketch14.addGeometry(Part.LineSegment(App.Vector(-23, 6.6741, 0), App.Vector(-23.5, 6.6741, 0)), False)
sketch14.addConstraint(Sketcher.Constraint("Coincident", 0, 2, 1, 1))
sketch14.addConstraint(Sketcher.Constraint("Coincident", 1, 2, 2, 1))
sketch14.addConstraint(Sketcher.Constraint("Coincident", 2, 2, 3, 1))
sketch14.addConstraint(Sketcher.Constraint("Coincident", 3, 2, 4, 1))
sketch14.addConstraint(Sketcher.Constraint("Coincident", 4, 2, 5, 1))
sketch14.addConstraint(Sketcher.Constraint("Coincident", 5, 2, 0, 1))
sketch14.addConstraint(Sketcher.Constraint("Vertical", 0))
sketch14.addConstraint(Sketcher.Constraint("Horizontal", 1))
sketch14.addConstraint(Sketcher.Constraint("Vertical", 2))
sketch14.addConstraint(Sketcher.Constraint("Horizontal", 3))
sketch14.addConstraint(Sketcher.Constraint("Vertical", 4))
sketch14.addConstraint(Sketcher.Constraint("Horizontal", 5))
sketch14.addConstraint(Sketcher.Constraint("DistanceX", 3, 1, 3, 2, Q("17 mm")))
sketch14.addConstraint(Sketcher.Constraint("DistanceY", 2, 2, 2, 1, Q("30 mm")))
sketch14.addConstraint(Sketcher.Constraint("DistanceX", 1, 2, 1, 1, Q("16.5 mm")))
sketch14.addConstraint(Sketcher.Constraint("DistanceX", 1, 2, -1, 1, Q("40 mm")))
sketch14.addConstraint(Sketcher.Constraint("DistanceY", 0, 1, 0, 2, Q("16.6518 mm")))
sketch14.addConstraint(Sketcher.Constraint("DistanceY", -1, 1, 0, 2, Q("23.3259 mm")))
pad6 = body.newObject("PartDesign::Pad", "Pad005")
pad6.Profile = sketch14
pad6.Length = 8

sketch15 = body.newObject("Sketcher::SketchObject", "Sketch014")
sketch15.AttachmentSupport = (doc.getObject("XY_Plane"), [""])
sketch15.MapMode = "FlatFace"
sketch15.AttachmentOffset = App.Placement(App.Vector(0, 0, 51.15), App.Rotation())
sketch15.addGeometry(Part.LineSegment(App.Vector(-28.535898, 22.8259, 0), App.Vector(-35.464102, 22.8259, 0)), False)
sketch15.addGeometry(Part.LineSegment(App.Vector(-35.464102, 22.8259, 0), App.Vector(-38.928203, 16.8259, 0)), False)
sketch15.addGeometry(Part.LineSegment(App.Vector(-38.928203, 16.8259, 0), App.Vector(-35.464102, 10.8259, 0)), False)
sketch15.addGeometry(Part.LineSegment(App.Vector(-35.464102, 10.8259, 0), App.Vector(-28.535898, 10.8259, 0)), False)
sketch15.addGeometry(Part.LineSegment(App.Vector(-28.535898, 10.8259, 0), App.Vector(-25.071797, 16.8259, 0)), False)
sketch15.addGeometry(Part.LineSegment(App.Vector(-25.071797, 16.8259, 0), App.Vector(-28.535898, 22.8259, 0)), False)
sketch15.addConstraint(Sketcher.Constraint("Coincident", 0, 2, 1, 1))
sketch15.addConstraint(Sketcher.Constraint("Coincident", 1, 2, 2, 1))
sketch15.addConstraint(Sketcher.Constraint("Coincident", 2, 2, 3, 1))
sketch15.addConstraint(Sketcher.Constraint("Coincident", 3, 2, 4, 1))
sketch15.addConstraint(Sketcher.Constraint("Coincident", 4, 2, 5, 1))
sketch15.addConstraint(Sketcher.Constraint("Coincident", 5, 2, 0, 1))
sketch15.addConstraint(Sketcher.Constraint("Horizontal", 0))
sketch15.addConstraint(Sketcher.Constraint("Horizontal", 3))
sketch15.addConstraint(Sketcher.Constraint("Parallel", 1, 4))
sketch15.addConstraint(Sketcher.Constraint("Parallel", 2, 5))
sketch15.addConstraint(Sketcher.Constraint("Horizontal", 1, 2, 4, 2))
sketch15.addConstraint(Sketcher.Constraint("Vertical", 0, 2, 2, 2))
sketch15.addConstraint(Sketcher.Constraint("Vertical", 3, 2, 5, 2))
sketch15.addConstraint(Sketcher.Constraint("Angle", 1, Q("-120 deg")))
sketch15.addConstraint(Sketcher.Constraint("DistanceY", 1, 2, 0, 2, Q("6 mm")))
sketch15.addConstraint(Sketcher.Constraint("DistanceX", 0, 2, -1, 1, Q("35.464102 mm")))
sketch15.addConstraint(Sketcher.Constraint("DistanceY", -1, 1, 0, 2, Q("22.8259 mm")))
sketch15.addConstraint(Sketcher.Constraint("DistanceX", 3, 2, -1, 1, Q("28.535898 mm")))
pad7 = body.newObject("PartDesign::Pad", "Pad006")
pad7.Profile = sketch15
pad7.Length = 3

sketch16 = body.newObject("Sketcher::SketchObject", "Sketch015")
sketch16.AttachmentSupport = (doc.getObject("XY_Plane"), [""])
sketch16.MapMode = "FlatFace"
sketch16.AttachmentOffset = App.Placement(App.Vector(0, 0, 54.15), App.Rotation())
sketch16.addGeometry(Part.Circle(App.Vector(-32, 16.8259, 0), App.Vector(0, 0, 1), 5), False)
sketch16.addConstraint(Sketcher.Constraint("Diameter", 0, Q("10 mm")))
sketch16.addConstraint(Sketcher.Constraint("DistanceX", 0, 3, -1, 1, Q("32 mm")))
sketch16.addConstraint(Sketcher.Constraint("DistanceY", -1, 1, 0, 3, Q("16.8259 mm")))
pocket5 = body.newObject("PartDesign::Pocket", "Pocket004")
pocket5.Profile = sketch16
pocket5.Type = "UpToFirst"

sketch17 = body.newObject("Sketcher::SketchObject", "Sketch016")
sketch17.AttachmentSupport = (doc.getObject("XZ_Plane"), [""])
sketch17.MapMode = "FlatFace"
sketch17.AttachmentOffset = App.Placement(App.Vector(0, 0, -16.8259), App.Rotation())
sketch17.addGeometry(Part.LineSegment(App.Vector(-37, 71.85, 0), App.Vector(-32, 71.85, 0)), False)
sketch17.addGeometry(Part.LineSegment(App.Vector(-32, 71.85, 0), App.Vector(-32, 43.15, 0)), False)
sketch17.addGeometry(Part.LineSegment(App.Vector(-32, 43.15, 0), App.Vector(-36.5, 43.15, 0)), False)
sketch17.addGeometry(Part.LineSegment(App.Vector(-36.5, 43.15, 0), App.Vector(-37, 43.65, 0)), False)
sketch17.addGeometry(Part.LineSegment(App.Vector(-37, 43.65, 0), App.Vector(-37, 71.85, 0)), False)
sketch17.addGeometry(Part.LineSegment(App.Vector(-32, 71.85, 0), App.Vector(-32, 43.15, 0)), True)
sketch17.addConstraint(Sketcher.Constraint("Coincident", 0, 2, 1, 1))
sketch17.addConstraint(Sketcher.Constraint("Coincident", 1, 2, 2, 1))
sketch17.addConstraint(Sketcher.Constraint("Coincident", 2, 2, 3, 1))
sketch17.addConstraint(Sketcher.Constraint("Coincident", 3, 2, 4, 1))
sketch17.addConstraint(Sketcher.Constraint("Coincident", 4, 2, 0, 1))
sketch17.addConstraint(Sketcher.Constraint("Horizontal", 0))
sketch17.addConstraint(Sketcher.Constraint("Vertical", 1))
sketch17.addConstraint(Sketcher.Constraint("Horizontal", 2))
sketch17.addConstraint(Sketcher.Constraint("Vertical", 4))
sketch17.addConstraint(Sketcher.Constraint("Vertical", 5))
sketch17.addConstraint(Sketcher.Constraint("Coincident", 5, 1, 0, 2))
sketch17.addConstraint(Sketcher.Constraint("Horizontal", 2, 2, 5, 2))
sketch17.addConstraint(Sketcher.Constraint("DistanceX", 0, 1, 0, 2, Q("5 mm")))
sketch17.addConstraint(Sketcher.Constraint("Angle", 3, Q("135 deg")))
sketch17.addConstraint(Sketcher.Constraint("DistanceX", 2, 2, 2, 1, Q("4.5 mm")))
sketch17.addConstraint(Sketcher.Constraint("DistanceY", 1, 2, 1, 1, Q("28.7 mm")))
sketch17.addConstraint(Sketcher.Constraint("DistanceX", 0, 2, -1, 1, Q("32 mm")))
sketch17.addConstraint(Sketcher.Constraint("DistanceY", -1, 1, 0, 2, Q("71.85 mm")))
revolution = body.newObject("PartDesign::Revolution", "Revolution")
revolution.Profile = sketch17
revolution.ReferenceAxis = (sketch17, ["Axis0"])
revolution.Angle = 360

sketch18 = body.newObject("Sketcher::SketchObject", "Sketch017")
sketch18.AttachmentSupport = (doc.getObject("XY_Plane"), [""])
sketch18.MapMode = "FlatFace"
sketch18.AttachmentOffset = App.Placement(App.Vector(0, 0, -28.85), App.Rotation())
sketch18.addGeometry(Part.Circle(App.Vector(-12.5, 16.4609, 0), App.Vector(0, 0, 1), 5), False)
sketch18.addConstraint(Sketcher.Constraint("Diameter", 0, Q("10 mm")))
sketch18.addConstraint(Sketcher.Constraint("DistanceX", 0, 3, -1, 1, Q("12.5 mm")))
sketch18.addConstraint(Sketcher.Constraint("DistanceY", -1, 1, 0, 3, Q("16.4609 mm")))
pocket6 = body.newObject("PartDesign::Pocket", "Pocket005")
pocket6.Profile = sketch18
pocket6.Type = "UpToFirst"
pocket6.Reversed = True

sketch19 = body.newObject("Sketcher::SketchObject", "Sketch018")
sketch19.AttachmentSupport = (doc.getObject("XZ_Plane"), [""])
sketch19.MapMode = "FlatFace"
sketch19.AttachmentOffset = App.Placement(App.Vector(0, 0, -16.4609), App.Rotation())
sketch19.addGeometry(Part.LineSegment(App.Vector(-17, -17.85, 0), App.Vector(-12.5, -17.85, 0)), False)
sketch19.addGeometry(Part.LineSegment(App.Vector(-12.5, -17.85, 0), App.Vector(-12.5, -46.55, 0)), False)
sketch19.addGeometry(Part.LineSegment(App.Vector(-12.5, -46.55, 0), App.Vector(-17.5, -46.55, 0)), False)
sketch19.addGeometry(Part.LineSegment(App.Vector(-17.5, -46.55, 0), App.Vector(-17.5, -18.35, 0)), False)
sketch19.addGeometry(Part.LineSegment(App.Vector(-17.5, -18.35, 0), App.Vector(-17, -17.85, 0)), False)
sketch19.addGeometry(Part.LineSegment(App.Vector(-12.5, -17.85, 0), App.Vector(-12.5, -46.55, 0)), True)
sketch19.addConstraint(Sketcher.Constraint("Coincident", 0, 2, 1, 1))
sketch19.addConstraint(Sketcher.Constraint("Coincident", 1, 2, 2, 1))
sketch19.addConstraint(Sketcher.Constraint("Coincident", 2, 2, 3, 1))
sketch19.addConstraint(Sketcher.Constraint("Coincident", 3, 2, 4, 1))
sketch19.addConstraint(Sketcher.Constraint("Coincident", 4, 2, 0, 1))
sketch19.addConstraint(Sketcher.Constraint("Horizontal", 0))
sketch19.addConstraint(Sketcher.Constraint("Vertical", 1))
sketch19.addConstraint(Sketcher.Constraint("Horizontal", 2))
sketch19.addConstraint(Sketcher.Constraint("Vertical", 3))
sketch19.addConstraint(Sketcher.Constraint("Vertical", 5))
sketch19.addConstraint(Sketcher.Constraint("Coincident", 5, 1, 0, 2))
sketch19.addConstraint(Sketcher.Constraint("Horizontal", 2, 2, 5, 2))
sketch19.addConstraint(Sketcher.Constraint("DistanceX", 2, 2, 2, 1, Q("5 mm")))
sketch19.addConstraint(Sketcher.Constraint("Angle", 4, Q("45 deg")))
sketch19.addConstraint(Sketcher.Constraint("DistanceX", 0, 1, 0, 2, Q("4.5 mm")))
sketch19.addConstraint(Sketcher.Constraint("DistanceY", 1, 2, 1, 1, Q("28.7 mm")))
sketch19.addConstraint(Sketcher.Constraint("DistanceX", 4, 2, -1, 1, Q("17 mm")))
sketch19.addConstraint(Sketcher.Constraint("DistanceY", 0, 2, -1, 1, Q("17.85 mm")))
revolution2 = body.newObject("PartDesign::Revolution", "Revolution001")
revolution2.Profile = sketch19
revolution2.ReferenceAxis = (sketch19, ["Axis0"])
revolution2.Angle = 360
doc.recompute()

chamfer2 = body.newObject("PartDesign::Chamfer", "Chamfer001")
chamfer2.Base = (revolution2, edges_at(revolution2, [(-37, 16.826, 71.85), (-7.5, 16.461, -46.55)]))
chamfer2.Size = 0.5

doc.recompute()
